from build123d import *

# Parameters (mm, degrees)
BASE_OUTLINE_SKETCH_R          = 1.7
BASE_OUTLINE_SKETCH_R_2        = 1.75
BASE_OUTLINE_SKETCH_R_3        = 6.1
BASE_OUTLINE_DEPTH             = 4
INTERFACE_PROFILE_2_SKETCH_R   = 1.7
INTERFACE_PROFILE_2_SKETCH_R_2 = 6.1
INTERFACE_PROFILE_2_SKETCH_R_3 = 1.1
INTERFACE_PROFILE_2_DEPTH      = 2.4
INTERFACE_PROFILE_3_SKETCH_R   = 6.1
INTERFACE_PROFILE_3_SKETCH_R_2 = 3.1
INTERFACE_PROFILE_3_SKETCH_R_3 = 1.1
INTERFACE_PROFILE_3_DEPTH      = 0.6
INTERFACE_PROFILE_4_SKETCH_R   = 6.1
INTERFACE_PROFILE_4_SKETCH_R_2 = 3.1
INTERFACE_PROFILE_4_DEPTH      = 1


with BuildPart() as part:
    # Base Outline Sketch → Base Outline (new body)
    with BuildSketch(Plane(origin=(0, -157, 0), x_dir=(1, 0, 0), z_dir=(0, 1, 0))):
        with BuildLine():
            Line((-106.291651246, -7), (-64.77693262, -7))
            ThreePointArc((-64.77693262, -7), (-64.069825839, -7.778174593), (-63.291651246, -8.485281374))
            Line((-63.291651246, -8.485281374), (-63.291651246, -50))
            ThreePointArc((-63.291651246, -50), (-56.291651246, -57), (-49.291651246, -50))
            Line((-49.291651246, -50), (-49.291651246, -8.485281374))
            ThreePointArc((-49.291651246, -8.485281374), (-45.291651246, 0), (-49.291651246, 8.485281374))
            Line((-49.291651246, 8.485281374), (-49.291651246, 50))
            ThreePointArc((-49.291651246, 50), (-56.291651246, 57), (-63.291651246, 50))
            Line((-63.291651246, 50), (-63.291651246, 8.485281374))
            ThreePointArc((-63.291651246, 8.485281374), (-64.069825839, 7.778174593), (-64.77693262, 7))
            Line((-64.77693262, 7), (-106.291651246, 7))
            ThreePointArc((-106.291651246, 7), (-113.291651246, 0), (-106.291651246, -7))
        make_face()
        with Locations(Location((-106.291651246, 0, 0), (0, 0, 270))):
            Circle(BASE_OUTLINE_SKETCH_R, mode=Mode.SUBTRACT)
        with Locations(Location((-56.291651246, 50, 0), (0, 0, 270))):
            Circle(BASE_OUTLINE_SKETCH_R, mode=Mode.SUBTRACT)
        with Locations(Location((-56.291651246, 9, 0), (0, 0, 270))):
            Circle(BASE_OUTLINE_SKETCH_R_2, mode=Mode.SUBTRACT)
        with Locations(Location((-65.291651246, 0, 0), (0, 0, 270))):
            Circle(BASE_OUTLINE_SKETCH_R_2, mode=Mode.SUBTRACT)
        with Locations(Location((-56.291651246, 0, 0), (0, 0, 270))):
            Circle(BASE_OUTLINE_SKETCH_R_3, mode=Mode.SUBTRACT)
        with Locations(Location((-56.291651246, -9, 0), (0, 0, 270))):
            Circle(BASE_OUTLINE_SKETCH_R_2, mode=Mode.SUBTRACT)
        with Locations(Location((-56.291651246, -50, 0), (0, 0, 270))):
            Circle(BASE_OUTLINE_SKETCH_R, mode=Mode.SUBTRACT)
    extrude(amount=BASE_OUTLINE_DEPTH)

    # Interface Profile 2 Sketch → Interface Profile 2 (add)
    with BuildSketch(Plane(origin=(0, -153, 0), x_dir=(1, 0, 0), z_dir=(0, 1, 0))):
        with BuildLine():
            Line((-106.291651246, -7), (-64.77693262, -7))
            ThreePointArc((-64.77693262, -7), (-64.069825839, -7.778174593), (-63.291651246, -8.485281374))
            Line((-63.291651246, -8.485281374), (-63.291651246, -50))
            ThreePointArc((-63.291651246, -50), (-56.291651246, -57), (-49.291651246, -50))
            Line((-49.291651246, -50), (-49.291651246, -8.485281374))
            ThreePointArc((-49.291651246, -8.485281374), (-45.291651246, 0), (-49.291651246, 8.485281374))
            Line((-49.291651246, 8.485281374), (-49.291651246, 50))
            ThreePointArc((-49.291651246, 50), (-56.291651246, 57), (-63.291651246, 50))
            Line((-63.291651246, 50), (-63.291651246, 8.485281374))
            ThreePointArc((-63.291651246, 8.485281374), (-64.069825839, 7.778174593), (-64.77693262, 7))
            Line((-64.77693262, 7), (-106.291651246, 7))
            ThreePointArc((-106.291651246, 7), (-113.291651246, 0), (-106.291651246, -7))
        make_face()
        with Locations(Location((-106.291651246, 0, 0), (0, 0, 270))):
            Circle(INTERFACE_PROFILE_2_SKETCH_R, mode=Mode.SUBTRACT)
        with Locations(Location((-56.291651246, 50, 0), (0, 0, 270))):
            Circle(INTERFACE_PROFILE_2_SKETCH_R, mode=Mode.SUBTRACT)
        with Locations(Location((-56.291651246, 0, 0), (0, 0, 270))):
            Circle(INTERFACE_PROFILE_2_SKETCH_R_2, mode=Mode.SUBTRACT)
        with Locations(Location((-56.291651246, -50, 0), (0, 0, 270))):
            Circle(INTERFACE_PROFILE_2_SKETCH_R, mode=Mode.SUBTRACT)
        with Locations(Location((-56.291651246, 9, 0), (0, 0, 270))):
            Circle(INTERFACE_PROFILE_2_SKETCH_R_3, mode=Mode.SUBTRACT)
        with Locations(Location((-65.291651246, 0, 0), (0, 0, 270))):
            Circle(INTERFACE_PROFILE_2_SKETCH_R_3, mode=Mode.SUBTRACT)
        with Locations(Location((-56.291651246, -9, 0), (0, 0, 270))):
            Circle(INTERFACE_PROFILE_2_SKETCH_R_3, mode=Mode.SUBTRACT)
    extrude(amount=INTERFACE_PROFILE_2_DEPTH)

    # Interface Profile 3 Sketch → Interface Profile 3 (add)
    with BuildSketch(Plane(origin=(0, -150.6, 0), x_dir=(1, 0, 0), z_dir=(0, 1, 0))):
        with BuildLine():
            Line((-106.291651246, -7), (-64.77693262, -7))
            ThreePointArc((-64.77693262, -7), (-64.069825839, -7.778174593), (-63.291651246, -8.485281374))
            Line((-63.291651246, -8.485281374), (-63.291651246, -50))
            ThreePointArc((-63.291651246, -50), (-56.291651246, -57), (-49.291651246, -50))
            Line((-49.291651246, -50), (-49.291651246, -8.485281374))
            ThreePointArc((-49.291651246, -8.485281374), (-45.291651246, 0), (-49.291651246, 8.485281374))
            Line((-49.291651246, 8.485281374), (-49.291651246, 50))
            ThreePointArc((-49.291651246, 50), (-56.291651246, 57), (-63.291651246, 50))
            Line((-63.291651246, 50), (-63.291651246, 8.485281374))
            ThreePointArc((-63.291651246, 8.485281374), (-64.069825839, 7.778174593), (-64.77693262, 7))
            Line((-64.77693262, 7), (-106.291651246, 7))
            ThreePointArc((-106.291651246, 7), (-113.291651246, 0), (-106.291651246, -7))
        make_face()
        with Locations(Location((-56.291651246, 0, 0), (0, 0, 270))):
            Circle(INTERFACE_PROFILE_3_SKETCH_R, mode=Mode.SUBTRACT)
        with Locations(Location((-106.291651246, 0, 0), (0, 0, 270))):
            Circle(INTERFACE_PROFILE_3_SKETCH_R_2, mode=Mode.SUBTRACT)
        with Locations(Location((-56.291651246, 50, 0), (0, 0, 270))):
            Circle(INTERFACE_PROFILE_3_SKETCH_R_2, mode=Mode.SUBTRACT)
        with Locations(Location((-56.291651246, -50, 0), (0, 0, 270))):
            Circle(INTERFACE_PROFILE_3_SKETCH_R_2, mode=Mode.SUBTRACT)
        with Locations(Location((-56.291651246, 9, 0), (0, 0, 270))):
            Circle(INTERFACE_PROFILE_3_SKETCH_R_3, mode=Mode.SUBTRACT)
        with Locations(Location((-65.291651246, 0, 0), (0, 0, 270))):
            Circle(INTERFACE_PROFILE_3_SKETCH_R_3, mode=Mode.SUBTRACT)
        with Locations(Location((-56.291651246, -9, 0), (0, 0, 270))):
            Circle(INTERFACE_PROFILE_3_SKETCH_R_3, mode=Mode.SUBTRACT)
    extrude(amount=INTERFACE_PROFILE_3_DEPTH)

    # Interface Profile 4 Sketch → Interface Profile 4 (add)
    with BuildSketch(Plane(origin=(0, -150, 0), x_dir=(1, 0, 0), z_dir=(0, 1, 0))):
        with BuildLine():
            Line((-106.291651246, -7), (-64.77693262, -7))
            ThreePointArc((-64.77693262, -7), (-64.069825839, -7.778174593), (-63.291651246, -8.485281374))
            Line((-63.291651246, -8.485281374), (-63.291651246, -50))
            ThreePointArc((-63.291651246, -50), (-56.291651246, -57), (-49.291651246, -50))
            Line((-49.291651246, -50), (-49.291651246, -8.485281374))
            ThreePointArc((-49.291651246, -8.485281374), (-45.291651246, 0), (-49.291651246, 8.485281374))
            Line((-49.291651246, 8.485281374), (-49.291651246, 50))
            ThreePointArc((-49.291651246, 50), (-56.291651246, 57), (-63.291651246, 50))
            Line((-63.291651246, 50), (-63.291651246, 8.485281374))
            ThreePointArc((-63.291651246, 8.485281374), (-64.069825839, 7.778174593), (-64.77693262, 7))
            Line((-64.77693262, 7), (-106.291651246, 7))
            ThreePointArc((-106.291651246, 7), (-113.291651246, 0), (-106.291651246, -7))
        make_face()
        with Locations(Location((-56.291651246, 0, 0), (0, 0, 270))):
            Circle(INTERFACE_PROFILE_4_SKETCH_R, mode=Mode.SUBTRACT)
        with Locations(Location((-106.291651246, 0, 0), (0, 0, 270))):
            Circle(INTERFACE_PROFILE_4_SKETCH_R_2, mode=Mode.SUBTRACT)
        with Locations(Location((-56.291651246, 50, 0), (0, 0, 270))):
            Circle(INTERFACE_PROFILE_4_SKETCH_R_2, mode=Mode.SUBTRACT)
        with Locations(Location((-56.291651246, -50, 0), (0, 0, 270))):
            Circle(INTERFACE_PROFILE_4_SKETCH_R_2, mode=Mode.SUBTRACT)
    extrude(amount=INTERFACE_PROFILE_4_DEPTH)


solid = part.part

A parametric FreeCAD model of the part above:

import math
import FreeCAD as App
import Part
import Sketcher

V = App.Vector

doc = App.newDocument("Part")
body = doc.addObject("PartDesign::Body", "Body")

# Sketch on XZ plane
sketch1 = doc.addObject("Sketcher::SketchObject", "Sketch")
body.addObject(sketch1)
sketch1.AttachmentSupport = (doc.XZ_Plane, [""])
sketch1.MapMode = "FlatFace"
sketch1.AttachmentOffset = App.Placement(V(0, 0, 157), App.Rotation())
sketch1.addGeometry([
    Part.LineSegment(V(-106.291651, 7, 0), V(-64.776933, 7, 0)),  # 0
    Part.ArcOfCircle(Part.Circle(V(-56.291651, 0, 0), V(0, 0, 1), 11), math.radians(129.521196), math.radians(140.478804)),  # 1
    Part.LineSegment(V(-63.291651, 8.485281, 0), V(-63.291651, 50, 0)),  # 2
    Part.ArcOfCircle(Part.Circle(V(-56.291651, 50, 0), V(0, 0, 1), 7), math.radians(0), math.radians(180)),  # 3
    Part.LineSegment(V(-49.291651, 50, 0), V(-49.291651, 8.485281, 0)),  # 4
    Part.ArcOfCircle(Part.Circle(V(-56.291651, 0, 0), V(0, 0, 1), 11), math.radians(-50.478804), math.radians(50.478804)),  # 5
    Part.LineSegment(V(-49.291651, -8.485281, 0), V(-49.291651, -50, 0)),  # 6
    Part.ArcOfCircle(Part.Circle(V(-56.291651, -50, 0), V(0, 0, 1), 7), math.radians(180), math.radians(360)),  # 7
    Part.LineSegment(V(-63.291651, -50, 0), V(-63.291651, -8.485281, 0)),  # 8
    Part.ArcOfCircle(Part.Circle(V(-56.291651, 0, 0), V(0, 0, 1), 11), math.radians(-140.478804), math.radians(-129.521196)),  # 9
    Part.LineSegment(V(-64.776933, -7, 0), V(-106.291651, -7, 0)),  # 10
    Part.ArcOfCircle(Part.Circle(V(-106.291651, 0, 0), V(0, 0, 1), 7), math.radians(90), math.radians(270)),  # 11
    Part.Circle(V(-56.291651, 50, 0), V(0, 0, 1), 1.7),  # 12
    Part.Circle(V(-56.291651, 9, 0), V(0, 0, 1), 1.75),  # 13
    Part.Circle(V(-106.291651, 0, 0), V(0, 0, 1), 1.7),  # 14
    Part.Circle(V(-65.291651, 0, 0), V(0, 0, 1), 1.75),  # 15
    Part.Circle(V(-56.291651, 0, 0), V(0, 0, 1), 6.1),  # 16
    Part.Circle(V(-56.291651, -9, 0), V(0, 0, 1), 1.75),  # 17
    Part.Circle(V(-56.291651, -50, 0), V(0, 0, 1), 1.7),  # 18
], False)
sketch1.addConstraint([
    Sketcher.Constraint("Coincident", 0, 2, 1, 2),
    Sketcher.Constraint("Coincident", 1, 1, 2, 1),
    Sketcher.Constraint("Tangent", 2, 2, 3, 2),
    Sketcher.Constraint("Tangent", 3, 1, 4, 1),
    Sketcher.Constraint("Coincident", 4, 2, 5, 2),
    Sketcher.Constraint("Coincident", 5, 1, 6, 1),
    Sketcher.Constraint("Tangent", 6, 2, 7, 2),
    Sketcher.Constraint("Tangent", 7, 1, 8, 1),
    Sketcher.Constraint("Coincident", 8, 2, 9, 2),
    Sketcher.Constraint("Coincident", 9, 1, 10, 1),
    Sketcher.Constraint("Tangent", 10, 2, 11, 2),
    Sketcher.Constraint("Tangent", 11, 1, 0, 1),
    Sketcher.Constraint("Horizontal", 0),
    Sketcher.Constraint("Vertical", 2),
    Sketcher.Constraint("Vertical", 4),
    Sketcher.Constraint("Vertical", 6),
    Sketcher.Constraint("Vertical", 8),
    Sketcher.Constraint("Horizontal", 10),
    Sketcher.Constraint("Coincident", 5, 3, 1, 3),
    Sketcher.Constraint("Coincident", 9, 3, 1, 3),
    Sketcher.Constraint("Coincident", 12, 3, 3, 3),
    Sketcher.Constraint("Coincident", 14, 3, 11, 3),
    Sketcher.Constraint("Coincident", 16, 3, 1, 3),
    Sketcher.Constraint("Coincident", 18, 3, 7, 3),
    Sketcher.Constraint("Equal", 1, 5),
    Sketcher.Constraint("Equal", 3, 7),
    Sketcher.Constraint("Equal", 5, 9),
    Sketcher.Constraint("Equal", 7, 11),
    Sketcher.Constraint("Equal", 12, 14),
    Sketcher.Constraint("Equal", 13, 15),
    Sketcher.Constraint("Equal", 15, 17),
    Sketcher.Constraint("Equal", 14, 18),
    Sketcher.Constraint("Symmetric", 3, 3, 7, 3, -1),
    Sketcher.Constraint("Symmetric", 13, 3, 17, 3, -1),
    Sketcher.Constraint("Symmetric", 0, 2, 9, 1, -1),
    Sketcher.Constraint("PointOnObject", 15, 3, -1),
    Sketcher.Constraint("Horizontal", 1, 1, 4, 2),
    Sketcher.Constraint("Vertical", 12, 3, 13, 3),
    Sketcher.Constraint("Equal", 10, 2),
    Sketcher.Constraint("Radius", 1, 11.0),
    Sketcher.Constraint("Radius", 3, 7.0),
    Sketcher.Constraint("Diameter", 12, 3.4),
    Sketcher.Constraint("Diameter", 13, 3.5),
    Sketcher.Constraint("Diameter", 16, 12.2),
    Sketcher.Constraint("DistanceY", -1, 1, 3, 3, 50.0),
    Sketcher.Constraint("DistanceY", -1, 1, 13, 3, 9.0),
    Sketcher.Constraint("DistanceX", 15, 3, 1, 3, 9.0),
    Sketcher.Constraint("DistanceX", 1, 3, -1, 1, 56.291651),
])
pad1 = doc.addObject("PartDesign::Pad", "Pad")
body.addObject(pad1)
pad1.Profile = sketch1
pad1.Length = 4
pad1.Reversed = True

# Sketch on XZ plane
sketch2 = doc.addObject("Sketcher::SketchObject", "Sketch001")
body.addObject(sketch2)
sketch2.AttachmentSupport = (doc.XZ_Plane, [""])
sketch2.MapMode = "FlatFace"
sketch2.AttachmentOffset = App.Placement(V(0, 0, 153), App.Rotation())
sketch2.addGeometry([
    Part.LineSegment(V(-106.291651, 7, 0), V(-64.776933, 7, 0)),  # 0
    Part.ArcOfCircle(Part.Circle(V(-56.291651, 0, 0), V(0, 0, 1), 11), math.radians(129.521196), math.radians(140.478804)),  # 1
    Part.LineSegment(V(-63.291651, 8.485281, 0), V(-63.291651, 50, 0)),  # 2
    Part.ArcOfCircle(Part.Circle(V(-56.291651, 50, 0), V(0, 0, 1), 7), math.radians(0), math.radians(180)),  # 3
    Part.LineSegment(V(-49.291651, 50, 0), V(-49.291651, 8.485281, 0)),  # 4
    Part.ArcOfCircle(Part.Circle(V(-56.291651, 0, 0), V(0, 0, 1), 11), math.radians(-50.478804), math.radians(50.478804)),  # 5
    Part.LineSegment(V(-49.291651, -8.485281, 0), V(-49.291651, -50, 0)),  # 6
    Part.ArcOfCircle(Part.Circle(V(-56.291651, -50, 0), V(0, 0, 1), 7), math.radians(180), math.radians(360)),  # 7
    Part.LineSegment(V(-63.291651, -50, 0), V(-63.291651, -8.485281, 0)),  # 8
    Part.ArcOfCircle(Part.Circle(V(-56.291651, 0, 0), V(0, 0, 1), 11), math.radians(-140.478804), math.radians(-129.521196)),  # 9
    Part.LineSegment(V(-64.776933, -7, 0), V(-106.291651, -7, 0)),  # 10
    Part.ArcOfCircle(Part.Circle(V(-106.291651, 0, 0), V(0, 0, 1), 7), math.radians(90), math.radians(270)),  # 11
    Part.Circle(V(-56.291651, 50, 0), V(0, 0, 1), 1.7),  # 12
    Part.Circle(V(-56.291651, 9, 0), V(0, 0, 1), 1.1),  # 13
    Part.Circle(V(-106.291651, 0, 0), V(0, 0, 1), 1.7),  # 14
    Part.Circle(V(-65.291651, 0, 0), V(0, 0, 1), 1.1),  # 15
    Part.Circle(V(-56.291651, 0, 0), V(0, 0, 1), 6.1),  # 16
    Part.Circle(V(-56.291651, -9, 0), V(0, 0, 1), 1.1),  # 17
    Part.Circle(V(-56.291651, -50, 0), V(0, 0, 1), 1.7),  # 18
], False)
sketch2.addConstraint([
    Sketcher.Constraint("Coincident", 0, 2, 1, 2),
    Sketcher.Constraint("Coincident", 1, 1, 2, 1),
    Sketcher.Constraint("Tangent", 2, 2, 3, 2),
    Sketcher.Constraint("Tangent", 3, 1, 4, 1),
    Sketcher.Constraint("Coincident", 4, 2, 5, 2),
    Sketcher.Constraint("Coincident", 5, 1, 6, 1),
    Sketcher.Constraint("Tangent", 6, 2, 7, 2),
    Sketcher.Constraint("Tangent", 7, 1, 8, 1),
    Sketcher.Constraint("Coincident", 8, 2, 9, 2),
    Sketcher.Constraint("Coincident", 9, 1, 10, 1),
    Sketcher.Constraint("Tangent", 10, 2, 11, 2),
    Sketcher.Constraint("Tangent", 11, 1, 0, 1),
    Sketcher.Constraint("Horizontal", 0),
    Sketcher.Constraint("Vertical", 2),
    Sketcher.Constraint("Vertical", 4),
    Sketcher.Constraint("Vertical", 6),
    Sketcher.Constraint("Vertical", 8),
    Sketcher.Constraint("Horizontal", 10),
    Sketcher.Constraint("Coincident", 5, 3, 1, 3),
    Sketcher.Constraint("Coincident", 9, 3, 1, 3),
    Sketcher.Constraint("Coincident", 12, 3, 3, 3),
    Sketcher.Constraint("Coincident", 14, 3, 11, 3),
    Sketcher.Constraint("Coincident", 16, 3, 1, 3),
    Sketcher.Constraint("Coincident", 18, 3, 7, 3),
    Sketcher.Constraint("Equal", 1, 5),
    Sketcher.Constraint("Equal", 3, 7),
    Sketcher.Constraint("Equal", 5, 9),
    Sketcher.Constraint("Equal", 7, 11),
    Sketcher.Constraint("Equal", 12, 14),
    Sketcher.Constraint("Equal", 13, 15),
    Sketcher.Constraint("Equal", 15, 17),
    Sketcher.Constraint("Equal", 14, 18),
    Sketcher.Constraint("Symmetric", 3, 3, 7, 3, -1),
    Sketcher.Constraint("Symmetric", 13, 3, 17, 3, -1),
    Sketcher.Constraint("Symmetric", 0, 2, 9, 1, -1),
    Sketcher.Constraint("PointOnObject", 15, 3, -1),
    Sketcher.Constraint("Horizontal", 1, 1, 4, 2),
    Sketcher.Constraint("Vertical", 12, 3, 13, 3),
    Sketcher.Constraint("Equal", 10, 2),
    Sketcher.Constraint("Radius", 1, 11.0),
    Sketcher.Constraint("Radius", 3, 7.0),
    Sketcher.Constraint("Diameter", 12, 3.4),
    Sketcher.Constraint("Diameter", 13, 2.2),
    Sketcher.Constraint("Diameter", 16, 12.2),
    Sketcher.Constraint("DistanceY", -1, 1, 3, 3, 50.0),
    Sketcher.Constraint("DistanceY", -1, 1, 13, 3, 9.0),
    Sketcher.Constraint("DistanceX", 15, 3, 1, 3, 9.0),
    Sketcher.Constraint("DistanceX", 1, 3, -1, 1, 56.291651),
])
pad2 = doc.addObject("PartDesign::Pad", "Pad001")
body.addObject(pad2)
pad2.Profile = sketch2
pad2.Length = 2.4
pad2.Reversed = True

# Sketch on XZ plane
sketch3 = doc.addObject("Sketcher::SketchObject", "Sketch002")
body.addObject(sketch3)
sketch3.AttachmentSupport = (doc.XZ_Plane, [""])
sketch3.MapMode = "FlatFace"
sketch3.AttachmentOffset = App.Placement(V(0, 0, 150.6), App.Rotation())
sketch3.addGeometry([
    Part.LineSegment(V(-106.291651, 7, 0), V(-64.776933, 7, 0)),  # 0
    Part.ArcOfCircle(Part.Circle(V(-56.291651, 0, 0), V(0, 0, 1), 11), math.radians(129.521196), math.radians(140.478804)),  # 1
    Part.LineSegment(V(-63.291651, 8.485281, 0), V(-63.291651, 50, 0)),  # 2
    Part.ArcOfCircle(Part.Circle(V(-56.291651, 50, 0), V(0, 0, 1), 7), math.radians(0), math.radians(180)),  # 3
    Part.LineSegment(V(-49.291651, 50, 0), V(-49.291651, 8.485281, 0)),  # 4
    Part.ArcOfCircle(Part.Circle(V(-56.291651, 0, 0), V(0, 0, 1), 11), math.radians(-50.478804), math.radians(50.478804)),  # 5
    Part.LineSegment(V(-49.291651, -8.485281, 0), V(-49.291651, -50, 0)),  # 6
    Part.ArcOfCircle(Part.Circle(V(-56.291651, -50, 0), V(0, 0, 1), 7), math.radians(180), math.radians(360)),  # 7
    Part.LineSegment(V(-63.291651, -50, 0), V(-63.291651, -8.485281, 0)),  # 8
    Part.ArcOfCircle(Part.Circle(V(-56.291651, 0, 0), V(0, 0, 1), 11), math.radians(-140.478804), math.radians(-129.521196)),  # 9
    Part.LineSegment(V(-64.776933, -7, 0), V(-106.291651, -7, 0)),  # 10
    Part.ArcOfCircle(Part.Circle(V(-106.291651, 0, 0), V(0, 0, 1), 7), math.radians(90), math.radians(270)),  # 11
    Part.Circle(V(-56.291651, 50, 0), V(0, 0, 1), 3.1),  # 12
    Part.Circle(V(-56.291651, 9, 0), V(0, 0, 1), 1.1),  # 13
    Part.Circle(V(-106.291651, 0, 0), V(0, 0, 1), 3.1),  # 14
    Part.Circle(V(-65.291651, 0, 0), V(0, 0, 1), 1.1),  # 15
    Part.Circle(V(-56.291651, 0, 0), V(0, 0, 1), 6.1),  # 16
    Part.Circle(V(-56.291651, -9, 0), V(0, 0, 1), 1.1),  # 17
    Part.Circle(V(-56.291651, -50, 0), V(0, 0, 1), 3.1),  # 18
], False)
sketch3.addConstraint([
    Sketcher.Constraint("Coincident", 0, 2, 1, 2),
    Sketcher.Constraint("Coincident", 1, 1, 2, 1),
    Sketcher.Constraint("Tangent", 2, 2, 3, 2),
    Sketcher.Constraint("Tangent", 3, 1, 4, 1),
    Sketcher.Constraint("Coincident", 4, 2, 5, 2),
    Sketcher.Constraint("Coincident", 5, 1, 6, 1),
    Sketcher.Constraint("Tangent", 6, 2, 7, 2),
    Sketcher.Constraint("Tangent", 7, 1, 8, 1),
    Sketcher.Constraint("Coincident", 8, 2, 9, 2),
    Sketcher.Constraint("Coincident", 9, 1, 10, 1),
    Sketcher.Constraint("Tangent", 10, 2, 11, 2),
    Sketcher.Constraint("Tangent", 11, 1, 0, 1),
    Sketcher.Constraint("Horizontal", 0),
    Sketcher.Constraint("Vertical", 2),
    Sketcher.Constraint("Vertical", 4),
    Sketcher.Constraint("Vertical", 6),
    Sketcher.Constraint("Vertical", 8),
    Sketcher.Constraint("Horizontal", 10),
    Sketcher.Constraint("Coincident", 5, 3, 1, 3),
    Sketcher.Constraint("Coincident", 9, 3, 1, 3),
    Sketcher.Constraint("Coincident", 12, 3, 3, 3),
    Sketcher.Constraint("Coincident", 14, 3, 11, 3),
    Sketcher.Constraint("Coincident", 16, 3, 1, 3),
    Sketcher.Constraint("Coincident", 18, 3, 7, 3),
    Sketcher.Constraint("Equal", 1, 5),
    Sketcher.Constraint("Equal", 3, 7),
    Sketcher.Constraint("Equal", 5, 9),
    Sketcher.Constraint("Equal", 7, 11),
    Sketcher.Constraint("Equal", 12, 14),
    Sketcher.Constraint("Equal", 13, 15),
    Sketcher.Constraint("Equal", 15, 17),
    Sketcher.Constraint("Equal", 14, 18),
    Sketcher.Constraint("Symmetric", 3, 3, 7, 3, -1),
    Sketcher.Constraint("Symmetric", 13, 3, 17, 3, -1),
    Sketcher.Constraint("Symmetric", 0, 2, 9, 1, -1),
    Sketcher.Constraint("PointOnObject", 15, 3, -1),
    Sketcher.Constraint("Horizontal", 1, 1, 4, 2),
    Sketcher.Constraint("Vertical", 12, 3, 13, 3),
    Sketcher.Constraint("Equal", 10, 2),
    Sketcher.Constraint("Radius", 1, 11.0),
    Sketcher.Constraint("Radius", 3, 7.0),
    Sketcher.Constraint("Diameter", 12, 6.2),
    Sketcher.Constraint("Diameter", 13, 2.2),
    Sketcher.Constraint("Diameter", 16, 12.2),
    Sketcher.Constraint("DistanceY", -1, 1, 3, 3, 50.0),
    Sketcher.Constraint("DistanceY", -1, 1, 13, 3, 9.0),
    Sketcher.Constraint("DistanceX", 15, 3, 1, 3, 9.0),
    Sketcher.Constraint("DistanceX", 1, 3, -1, 1, 56.291651),
])
pad3 = doc.addObject("PartDesign::Pad", "Pad002")
body.addObject(pad3)
pad3.Profile = sketch3
pad3.Length = 0.6
pad3.Reversed = True

# Sketch on XZ plane
sketch4 = doc.addObject("Sketcher::SketchObject", "Sketch003")
body.addObject(sketch4)
sketch4.AttachmentSupport = (doc.XZ_Plane, [""])
sketch4.MapMode = "FlatFace"
sketch4.AttachmentOffset = App.Placement(V(0, 0, 150), App.Rotation())
sketch4.addGeometry([
    Part.LineSegment(V(-106.291651, 7, 0), V(-64.776933, 7, 0)),  # 0
    Part.ArcOfCircle(Part.Circle(V(-56.291651, 0, 0), V(0, 0, 1), 11), math.radians(129.521196), math.radians(140.478804)),  # 1
    Part.LineSegment(V(-63.291651, 8.485281, 0), V(-63.291651, 50, 0)),  # 2
    Part.ArcOfCircle(Part.Circle(V(-56.291651, 50, 0), V(0, 0, 1), 7), math.radians(0), math.radians(180)),  # 3
    Part.LineSegment(V(-49.291651, 50, 0), V(-49.291651, 8.485281, 0)),  # 4
    Part.ArcOfCircle(Part.Circle(V(-56.291651, 0, 0), V(0, 0, 1), 11), math.radians(-50.478804), math.radians(50.478804)),  # 5
    Part.LineSegment(V(-49.291651, -8.485281, 0), V(-49.291651, -50, 0)),  # 6
    Part.ArcOfCircle(Part.Circle(V(-56.291651, -50, 0), V(0, 0, 1), 7), math.radians(180), math.radians(360)),  # 7
    Part.LineSegment(V(-63.291651, -50, 0), V(-63.291651, -8.485281, 0)),  # 8
    Part.ArcOfCircle(Part.Circle(V(-56.291651, 0, 0), V(0, 0, 1), 11), math.radians(-140.478804), math.radians(-129.521196)),  # 9
    Part.LineSegment(V(-64.776933, -7, 0), V(-106.291651, -7, 0)),  # 10
    Part.ArcOfCircle(Part.Circle(V(-106.291651, 0, 0), V(0, 0, 1), 7), math.radians(90), math.radians(270)),  # 11
    Part.Circle(V(-56.291651, 50, 0), V(0, 0, 1), 3.1),  # 12
    Part.Circle(V(-106.291651, 0, 0), V(0, 0, 1), 3.1),  # 13
    Part.Circle(V(-56.291651, 0, 0), V(0, 0, 1), 6.1),  # 14
    Part.Circle(V(-56.291651, -50, 0), V(0, 0, 1), 3.1),  # 15
], False)
sketch4.addConstraint([
    Sketcher.Constraint("Coincident", 0, 2, 1, 2),
    Sketcher.Constraint("Coincident", 1, 1, 2, 1),
    Sketcher.Constraint("Tangent", 2, 2, 3, 2),
    Sketcher.Constraint("Tangent", 3, 1, 4, 1),
    Sketcher.Constraint("Coincident", 4, 2, 5, 2),
    Sketcher.Constraint("Coincident", 5, 1, 6, 1),
    Sketcher.Constraint("Tangent", 6, 2, 7, 2),
    Sketcher.Constraint("Tangent", 7, 1, 8, 1),
    Sketcher.Constraint("Coincident", 8, 2, 9, 2),
    Sketcher.Constraint("Coincident", 9, 1, 10, 1),
    Sketcher.Constraint("Tangent", 10, 2, 11, 2),
    Sketcher.Constraint("Tangent", 11, 1, 0, 1),
    Sketcher.Constraint("Horizontal", 0),
    Sketcher.Constraint("Vertical", 2),
    Sketcher.Constraint("Vertical", 4),
    Sketcher.Constraint("Vertical", 6),
    Sketcher.Constraint("Vertical", 8),
    Sketcher.Constraint("Horizontal", 10),
    Sketcher.Constraint("Coincident", 5, 3, 1, 3),
    Sketcher.Constraint("Coincident", 9, 3, 1, 3),
    Sketcher.Constraint("Coincident", 12, 3, 3, 3),
    Sketcher.Constraint("Coincident", 13, 3, 11, 3),
    Sketcher.Constraint("Coincident", 14, 3, 1, 3),
    Sketcher.Constraint("Coincident", 15, 3, 7, 3),
    Sketcher.Constraint("Equal", 1, 5),
    Sketcher.Constraint("Equal", 3, 7),
    Sketcher.Constraint("Equal", 5, 9),
    Sketcher.Constraint("Equal", 7, 11),
    Sketcher.Constraint("Equal", 12, 13),
    Sketcher.Constraint("Equal", 13, 15),
    Sketcher.Constraint("Symmetric", 3, 3, 7, 3, -1),
    Sketcher.Constraint("Symmetric", 0, 2, 9, 1, -1),
    Sketcher.Constraint("Horizontal", 1, 1, 4, 2),
    Sketcher.Constraint("Equal", 10, 2),
    Sketcher.Constraint("Radius", 1, 11.0),
    Sketcher.Constraint("Radius", 3, 7.0),
    Sketcher.Constraint("Diameter", 12, 6.2),
    Sketcher.Constraint("Diameter", 14, 12.2),
    Sketcher.Constraint("DistanceY", -1, 1, 3, 3, 50.0),
    Sketcher.Constraint("DistanceX", 1, 3, -1, 1, 56.291651),
])
pad4 = doc.addObject("PartDesign::Pad", "Pad003")
body.addObject(pad4)
pad4.Profile = sketch4
pad4.Length = 1
pad4.Reversed = True

doc.recompute()
